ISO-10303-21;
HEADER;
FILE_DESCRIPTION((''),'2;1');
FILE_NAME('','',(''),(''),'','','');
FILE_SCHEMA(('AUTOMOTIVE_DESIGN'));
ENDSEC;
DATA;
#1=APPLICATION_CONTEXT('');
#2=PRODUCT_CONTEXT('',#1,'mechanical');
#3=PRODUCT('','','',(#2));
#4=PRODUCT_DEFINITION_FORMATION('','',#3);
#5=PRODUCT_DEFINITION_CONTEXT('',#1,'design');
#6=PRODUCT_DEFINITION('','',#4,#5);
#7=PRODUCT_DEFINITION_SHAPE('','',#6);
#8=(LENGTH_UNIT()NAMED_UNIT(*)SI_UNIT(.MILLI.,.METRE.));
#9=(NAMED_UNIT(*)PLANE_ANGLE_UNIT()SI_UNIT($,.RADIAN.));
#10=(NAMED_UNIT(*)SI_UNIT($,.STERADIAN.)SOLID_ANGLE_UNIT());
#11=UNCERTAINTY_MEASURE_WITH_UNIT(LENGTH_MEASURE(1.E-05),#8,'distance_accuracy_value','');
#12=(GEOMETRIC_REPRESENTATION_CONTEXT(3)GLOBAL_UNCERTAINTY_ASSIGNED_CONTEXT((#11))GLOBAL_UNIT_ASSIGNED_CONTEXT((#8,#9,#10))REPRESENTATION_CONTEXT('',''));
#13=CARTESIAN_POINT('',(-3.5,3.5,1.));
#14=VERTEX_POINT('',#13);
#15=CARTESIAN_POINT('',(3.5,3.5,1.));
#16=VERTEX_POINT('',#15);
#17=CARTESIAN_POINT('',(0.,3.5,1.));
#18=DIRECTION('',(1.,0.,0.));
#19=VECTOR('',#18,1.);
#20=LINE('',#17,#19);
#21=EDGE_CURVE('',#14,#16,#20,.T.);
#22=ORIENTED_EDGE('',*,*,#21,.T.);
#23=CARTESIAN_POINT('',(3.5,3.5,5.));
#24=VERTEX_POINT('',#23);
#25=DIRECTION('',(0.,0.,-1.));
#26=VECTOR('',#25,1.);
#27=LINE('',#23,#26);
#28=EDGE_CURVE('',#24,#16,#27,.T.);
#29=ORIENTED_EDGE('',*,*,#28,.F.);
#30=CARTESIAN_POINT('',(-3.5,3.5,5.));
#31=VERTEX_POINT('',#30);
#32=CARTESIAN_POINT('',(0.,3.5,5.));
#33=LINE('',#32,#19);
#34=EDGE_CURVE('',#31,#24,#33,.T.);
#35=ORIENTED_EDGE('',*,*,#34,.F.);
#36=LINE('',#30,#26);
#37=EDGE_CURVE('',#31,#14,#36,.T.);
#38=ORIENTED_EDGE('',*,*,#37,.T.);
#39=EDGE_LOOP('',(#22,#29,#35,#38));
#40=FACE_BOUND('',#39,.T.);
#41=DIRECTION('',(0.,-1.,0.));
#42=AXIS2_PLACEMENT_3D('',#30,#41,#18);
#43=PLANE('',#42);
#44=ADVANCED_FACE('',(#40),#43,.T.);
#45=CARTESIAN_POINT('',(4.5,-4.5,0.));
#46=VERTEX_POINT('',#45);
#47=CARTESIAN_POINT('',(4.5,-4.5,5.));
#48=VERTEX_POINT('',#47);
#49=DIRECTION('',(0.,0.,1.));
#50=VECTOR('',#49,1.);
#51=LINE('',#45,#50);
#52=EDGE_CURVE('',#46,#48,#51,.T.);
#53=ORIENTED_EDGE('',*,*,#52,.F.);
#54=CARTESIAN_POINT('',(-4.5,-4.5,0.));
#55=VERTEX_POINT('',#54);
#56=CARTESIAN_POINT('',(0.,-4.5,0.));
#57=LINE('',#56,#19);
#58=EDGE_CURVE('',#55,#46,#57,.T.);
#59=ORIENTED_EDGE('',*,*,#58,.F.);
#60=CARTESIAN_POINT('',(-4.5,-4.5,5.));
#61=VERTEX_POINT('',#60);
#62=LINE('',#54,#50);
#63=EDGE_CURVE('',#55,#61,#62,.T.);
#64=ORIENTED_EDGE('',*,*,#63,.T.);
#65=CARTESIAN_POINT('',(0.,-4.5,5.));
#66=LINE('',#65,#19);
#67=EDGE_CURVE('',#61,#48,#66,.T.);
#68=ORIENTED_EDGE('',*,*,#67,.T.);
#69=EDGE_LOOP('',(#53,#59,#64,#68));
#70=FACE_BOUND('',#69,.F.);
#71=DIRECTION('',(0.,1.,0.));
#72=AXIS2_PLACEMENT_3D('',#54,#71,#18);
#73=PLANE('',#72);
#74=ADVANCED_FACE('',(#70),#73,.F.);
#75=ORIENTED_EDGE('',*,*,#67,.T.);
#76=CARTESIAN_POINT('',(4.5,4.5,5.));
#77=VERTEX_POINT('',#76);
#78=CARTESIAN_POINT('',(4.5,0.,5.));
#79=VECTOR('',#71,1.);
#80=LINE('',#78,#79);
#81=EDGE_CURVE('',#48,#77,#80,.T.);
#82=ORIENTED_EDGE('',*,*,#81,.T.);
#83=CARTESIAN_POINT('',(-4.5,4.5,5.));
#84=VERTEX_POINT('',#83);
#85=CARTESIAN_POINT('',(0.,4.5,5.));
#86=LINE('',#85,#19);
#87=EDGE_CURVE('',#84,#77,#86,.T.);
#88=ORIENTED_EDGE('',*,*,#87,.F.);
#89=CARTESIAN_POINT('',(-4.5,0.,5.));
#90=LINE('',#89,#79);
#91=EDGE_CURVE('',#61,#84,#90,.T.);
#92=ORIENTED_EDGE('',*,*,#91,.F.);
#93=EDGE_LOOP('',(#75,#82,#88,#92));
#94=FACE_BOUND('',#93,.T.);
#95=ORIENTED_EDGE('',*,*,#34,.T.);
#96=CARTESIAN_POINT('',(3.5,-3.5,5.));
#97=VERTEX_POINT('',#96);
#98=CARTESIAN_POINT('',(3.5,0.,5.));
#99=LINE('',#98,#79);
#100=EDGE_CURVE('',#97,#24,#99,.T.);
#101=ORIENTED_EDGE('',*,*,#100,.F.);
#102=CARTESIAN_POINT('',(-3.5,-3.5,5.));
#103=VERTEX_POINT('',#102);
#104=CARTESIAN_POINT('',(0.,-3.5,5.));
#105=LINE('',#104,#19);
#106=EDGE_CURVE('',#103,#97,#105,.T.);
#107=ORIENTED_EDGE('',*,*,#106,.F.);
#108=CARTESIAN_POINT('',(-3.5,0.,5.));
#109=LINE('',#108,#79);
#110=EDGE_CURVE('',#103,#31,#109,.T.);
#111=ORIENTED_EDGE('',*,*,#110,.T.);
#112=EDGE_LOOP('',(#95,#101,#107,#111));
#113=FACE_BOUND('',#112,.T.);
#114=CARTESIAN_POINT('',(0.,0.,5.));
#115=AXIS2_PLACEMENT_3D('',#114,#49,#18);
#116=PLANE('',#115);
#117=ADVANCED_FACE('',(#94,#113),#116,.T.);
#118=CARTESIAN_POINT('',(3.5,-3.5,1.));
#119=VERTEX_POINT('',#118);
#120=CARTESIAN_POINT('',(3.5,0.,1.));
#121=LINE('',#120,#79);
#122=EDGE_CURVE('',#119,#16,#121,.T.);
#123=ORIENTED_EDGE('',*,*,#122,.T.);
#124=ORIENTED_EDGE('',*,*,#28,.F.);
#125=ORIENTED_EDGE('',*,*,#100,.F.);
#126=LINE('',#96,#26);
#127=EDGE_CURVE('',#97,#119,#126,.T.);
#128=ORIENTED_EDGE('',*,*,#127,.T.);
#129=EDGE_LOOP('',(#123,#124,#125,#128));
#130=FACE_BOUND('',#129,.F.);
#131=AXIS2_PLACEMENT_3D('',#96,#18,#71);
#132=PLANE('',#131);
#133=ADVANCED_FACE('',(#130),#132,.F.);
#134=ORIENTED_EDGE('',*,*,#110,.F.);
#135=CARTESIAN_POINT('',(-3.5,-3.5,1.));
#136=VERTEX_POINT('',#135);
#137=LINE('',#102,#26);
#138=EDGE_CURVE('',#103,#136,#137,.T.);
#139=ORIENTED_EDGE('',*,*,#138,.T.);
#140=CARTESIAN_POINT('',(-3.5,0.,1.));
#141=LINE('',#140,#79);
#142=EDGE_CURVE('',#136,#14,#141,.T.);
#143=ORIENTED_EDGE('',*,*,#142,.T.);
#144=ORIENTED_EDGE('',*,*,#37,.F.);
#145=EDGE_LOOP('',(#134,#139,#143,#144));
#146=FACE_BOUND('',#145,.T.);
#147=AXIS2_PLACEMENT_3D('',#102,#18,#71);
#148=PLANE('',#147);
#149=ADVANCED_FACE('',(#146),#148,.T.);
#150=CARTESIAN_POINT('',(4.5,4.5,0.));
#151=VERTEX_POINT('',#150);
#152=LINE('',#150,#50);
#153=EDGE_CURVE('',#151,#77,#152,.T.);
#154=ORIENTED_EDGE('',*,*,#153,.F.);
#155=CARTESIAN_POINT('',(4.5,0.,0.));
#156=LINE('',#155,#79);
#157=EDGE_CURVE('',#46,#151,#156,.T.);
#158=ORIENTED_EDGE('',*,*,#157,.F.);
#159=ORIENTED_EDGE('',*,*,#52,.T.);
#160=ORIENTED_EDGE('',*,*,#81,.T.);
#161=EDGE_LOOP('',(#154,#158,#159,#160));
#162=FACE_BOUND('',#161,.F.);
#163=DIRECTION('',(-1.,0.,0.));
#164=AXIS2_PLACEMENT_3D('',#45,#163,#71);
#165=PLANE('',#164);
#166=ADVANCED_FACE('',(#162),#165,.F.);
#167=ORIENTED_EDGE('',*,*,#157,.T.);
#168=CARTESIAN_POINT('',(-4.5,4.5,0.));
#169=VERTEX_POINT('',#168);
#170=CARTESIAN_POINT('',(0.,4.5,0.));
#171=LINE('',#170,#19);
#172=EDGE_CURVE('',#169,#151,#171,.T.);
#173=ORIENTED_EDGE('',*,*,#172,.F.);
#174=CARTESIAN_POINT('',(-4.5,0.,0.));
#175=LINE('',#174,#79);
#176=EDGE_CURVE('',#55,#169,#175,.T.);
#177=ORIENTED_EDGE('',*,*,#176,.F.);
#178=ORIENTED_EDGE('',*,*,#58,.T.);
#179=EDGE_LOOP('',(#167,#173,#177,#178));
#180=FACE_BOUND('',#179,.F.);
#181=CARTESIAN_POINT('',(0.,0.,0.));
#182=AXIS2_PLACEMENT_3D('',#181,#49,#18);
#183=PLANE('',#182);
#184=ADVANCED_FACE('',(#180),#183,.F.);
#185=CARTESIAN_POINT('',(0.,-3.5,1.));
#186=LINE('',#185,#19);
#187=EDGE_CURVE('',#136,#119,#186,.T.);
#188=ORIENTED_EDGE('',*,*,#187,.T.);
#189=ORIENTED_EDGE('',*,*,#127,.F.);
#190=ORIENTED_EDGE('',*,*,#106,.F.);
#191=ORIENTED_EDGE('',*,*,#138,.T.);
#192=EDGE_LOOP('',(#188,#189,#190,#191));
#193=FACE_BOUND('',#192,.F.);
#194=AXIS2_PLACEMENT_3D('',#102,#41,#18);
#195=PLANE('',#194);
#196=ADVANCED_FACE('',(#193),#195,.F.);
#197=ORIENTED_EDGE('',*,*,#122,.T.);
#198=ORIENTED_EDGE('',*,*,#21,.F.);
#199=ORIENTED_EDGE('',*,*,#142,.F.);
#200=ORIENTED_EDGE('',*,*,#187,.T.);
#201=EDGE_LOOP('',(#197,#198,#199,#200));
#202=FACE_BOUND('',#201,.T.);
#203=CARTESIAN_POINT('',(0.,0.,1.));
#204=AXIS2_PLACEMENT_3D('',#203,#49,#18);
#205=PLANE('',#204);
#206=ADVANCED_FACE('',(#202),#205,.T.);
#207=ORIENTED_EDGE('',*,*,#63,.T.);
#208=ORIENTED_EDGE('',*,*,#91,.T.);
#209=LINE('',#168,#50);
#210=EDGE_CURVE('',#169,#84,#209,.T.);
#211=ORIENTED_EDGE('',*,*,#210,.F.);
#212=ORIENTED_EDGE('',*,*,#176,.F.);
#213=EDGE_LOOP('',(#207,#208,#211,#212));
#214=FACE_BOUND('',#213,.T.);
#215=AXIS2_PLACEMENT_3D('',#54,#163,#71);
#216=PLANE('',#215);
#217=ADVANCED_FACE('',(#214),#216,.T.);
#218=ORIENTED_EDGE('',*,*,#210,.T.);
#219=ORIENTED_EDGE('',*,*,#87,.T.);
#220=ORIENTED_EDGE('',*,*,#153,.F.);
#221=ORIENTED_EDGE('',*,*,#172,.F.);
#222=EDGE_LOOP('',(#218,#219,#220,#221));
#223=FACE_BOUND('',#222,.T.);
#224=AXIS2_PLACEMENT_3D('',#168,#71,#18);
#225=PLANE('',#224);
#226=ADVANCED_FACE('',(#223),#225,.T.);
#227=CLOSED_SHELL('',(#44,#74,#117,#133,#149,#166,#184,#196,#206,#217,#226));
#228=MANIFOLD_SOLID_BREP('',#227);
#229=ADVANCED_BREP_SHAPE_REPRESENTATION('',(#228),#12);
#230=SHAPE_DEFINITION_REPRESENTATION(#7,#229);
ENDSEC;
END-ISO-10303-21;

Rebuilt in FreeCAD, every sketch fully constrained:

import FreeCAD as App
import Part
import Sketcher
from FreeCAD import Vector
Q = App.Units.Quantity


def add_polygon(sketch, points):
    """Adds a closed chain of lines whose ends are joined by coincident constraints."""
    first, n = sketch.GeometryCount, len(points)
    for a, b in zip(points, points[1:] + points[:1]):
        sketch.addGeometry(Part.LineSegment(App.Vector(*a, 0), App.Vector(*b, 0)), False)
    for i in range(n):
        sketch.addConstraint(Sketcher.Constraint("Coincident", first + i, 2, first + (i + 1) % n, 1))

doc = App.newDocument("Part")
body = doc.addObject("PartDesign::Body", "Body")

# Sketch on XY plane
sketch1 = body.newObject("Sketcher::SketchObject", "Sketch")
sketch1.AttachmentSupport = (doc.getObject("XY_Plane"), [""])
sketch1.MapMode = "FlatFace"
add_polygon(sketch1, [(-4, 4), (-4, -4), (4, -4), (4, 4)])  # lines 0-3
sketch1.addConstraint(Sketcher.Constraint("Vertical", 0))
sketch1.addConstraint(Sketcher.Constraint("Horizontal", 1))
sketch1.addConstraint(Sketcher.Constraint("Vertical", 2))
sketch1.addConstraint(Sketcher.Constraint("Horizontal", 3))
sketch1.addConstraint(Sketcher.Constraint("Symmetric", 0, 2, 2, 2, -1, 1))
sketch1.addConstraint(Sketcher.Constraint("Equal", 3, 0))
sketch1.addConstraint(Sketcher.Constraint("DistanceX", 1, 1, 1, 2, Q("9 mm")))
pad1 = body.newObject("PartDesign::Pad", "Pad")
pad1.Profile = sketch1
pad1.Length = 5

# Sketch on XY plane
sketch2 = body.newObject("Sketcher::SketchObject", "Sketch001")
sketch2.AttachmentSupport = (doc.getObject("XY_Plane"), [""])
sketch2.MapMode = "FlatFace"
sketch2.AttachmentOffset = App.Placement(Vector(0, 0, 5), App.Rotation())
add_polygon(sketch2, [(-4, 4), (-4, -4), (4, -4), (4, 4)])  # lines 0-3
sketch2.addConstraint(Sketcher.Constraint("Vertical", 0))
sketch2.addConstraint(Sketcher.Constraint("Horizontal", 1))
sketch2.addConstraint(Sketcher.Constraint("Vertical", 2))
sketch2.addConstraint(Sketcher.Constraint("Horizontal", 3))
sketch2.addConstraint(Sketcher.Constraint("Symmetric", 0, 2, 2, 2, -1, 1))
sketch2.addConstraint(Sketcher.Constraint("Equal", 3, 0))
sketch2.addConstraint(Sketcher.Constraint("DistanceX", 1, 1, 1, 2, Q("7 mm")))
pocket1 = body.newObject("PartDesign::Pocket", "Pocket")
pocket1.Profile = sketch2
pocket1.Length = 4

doc.recompute()
